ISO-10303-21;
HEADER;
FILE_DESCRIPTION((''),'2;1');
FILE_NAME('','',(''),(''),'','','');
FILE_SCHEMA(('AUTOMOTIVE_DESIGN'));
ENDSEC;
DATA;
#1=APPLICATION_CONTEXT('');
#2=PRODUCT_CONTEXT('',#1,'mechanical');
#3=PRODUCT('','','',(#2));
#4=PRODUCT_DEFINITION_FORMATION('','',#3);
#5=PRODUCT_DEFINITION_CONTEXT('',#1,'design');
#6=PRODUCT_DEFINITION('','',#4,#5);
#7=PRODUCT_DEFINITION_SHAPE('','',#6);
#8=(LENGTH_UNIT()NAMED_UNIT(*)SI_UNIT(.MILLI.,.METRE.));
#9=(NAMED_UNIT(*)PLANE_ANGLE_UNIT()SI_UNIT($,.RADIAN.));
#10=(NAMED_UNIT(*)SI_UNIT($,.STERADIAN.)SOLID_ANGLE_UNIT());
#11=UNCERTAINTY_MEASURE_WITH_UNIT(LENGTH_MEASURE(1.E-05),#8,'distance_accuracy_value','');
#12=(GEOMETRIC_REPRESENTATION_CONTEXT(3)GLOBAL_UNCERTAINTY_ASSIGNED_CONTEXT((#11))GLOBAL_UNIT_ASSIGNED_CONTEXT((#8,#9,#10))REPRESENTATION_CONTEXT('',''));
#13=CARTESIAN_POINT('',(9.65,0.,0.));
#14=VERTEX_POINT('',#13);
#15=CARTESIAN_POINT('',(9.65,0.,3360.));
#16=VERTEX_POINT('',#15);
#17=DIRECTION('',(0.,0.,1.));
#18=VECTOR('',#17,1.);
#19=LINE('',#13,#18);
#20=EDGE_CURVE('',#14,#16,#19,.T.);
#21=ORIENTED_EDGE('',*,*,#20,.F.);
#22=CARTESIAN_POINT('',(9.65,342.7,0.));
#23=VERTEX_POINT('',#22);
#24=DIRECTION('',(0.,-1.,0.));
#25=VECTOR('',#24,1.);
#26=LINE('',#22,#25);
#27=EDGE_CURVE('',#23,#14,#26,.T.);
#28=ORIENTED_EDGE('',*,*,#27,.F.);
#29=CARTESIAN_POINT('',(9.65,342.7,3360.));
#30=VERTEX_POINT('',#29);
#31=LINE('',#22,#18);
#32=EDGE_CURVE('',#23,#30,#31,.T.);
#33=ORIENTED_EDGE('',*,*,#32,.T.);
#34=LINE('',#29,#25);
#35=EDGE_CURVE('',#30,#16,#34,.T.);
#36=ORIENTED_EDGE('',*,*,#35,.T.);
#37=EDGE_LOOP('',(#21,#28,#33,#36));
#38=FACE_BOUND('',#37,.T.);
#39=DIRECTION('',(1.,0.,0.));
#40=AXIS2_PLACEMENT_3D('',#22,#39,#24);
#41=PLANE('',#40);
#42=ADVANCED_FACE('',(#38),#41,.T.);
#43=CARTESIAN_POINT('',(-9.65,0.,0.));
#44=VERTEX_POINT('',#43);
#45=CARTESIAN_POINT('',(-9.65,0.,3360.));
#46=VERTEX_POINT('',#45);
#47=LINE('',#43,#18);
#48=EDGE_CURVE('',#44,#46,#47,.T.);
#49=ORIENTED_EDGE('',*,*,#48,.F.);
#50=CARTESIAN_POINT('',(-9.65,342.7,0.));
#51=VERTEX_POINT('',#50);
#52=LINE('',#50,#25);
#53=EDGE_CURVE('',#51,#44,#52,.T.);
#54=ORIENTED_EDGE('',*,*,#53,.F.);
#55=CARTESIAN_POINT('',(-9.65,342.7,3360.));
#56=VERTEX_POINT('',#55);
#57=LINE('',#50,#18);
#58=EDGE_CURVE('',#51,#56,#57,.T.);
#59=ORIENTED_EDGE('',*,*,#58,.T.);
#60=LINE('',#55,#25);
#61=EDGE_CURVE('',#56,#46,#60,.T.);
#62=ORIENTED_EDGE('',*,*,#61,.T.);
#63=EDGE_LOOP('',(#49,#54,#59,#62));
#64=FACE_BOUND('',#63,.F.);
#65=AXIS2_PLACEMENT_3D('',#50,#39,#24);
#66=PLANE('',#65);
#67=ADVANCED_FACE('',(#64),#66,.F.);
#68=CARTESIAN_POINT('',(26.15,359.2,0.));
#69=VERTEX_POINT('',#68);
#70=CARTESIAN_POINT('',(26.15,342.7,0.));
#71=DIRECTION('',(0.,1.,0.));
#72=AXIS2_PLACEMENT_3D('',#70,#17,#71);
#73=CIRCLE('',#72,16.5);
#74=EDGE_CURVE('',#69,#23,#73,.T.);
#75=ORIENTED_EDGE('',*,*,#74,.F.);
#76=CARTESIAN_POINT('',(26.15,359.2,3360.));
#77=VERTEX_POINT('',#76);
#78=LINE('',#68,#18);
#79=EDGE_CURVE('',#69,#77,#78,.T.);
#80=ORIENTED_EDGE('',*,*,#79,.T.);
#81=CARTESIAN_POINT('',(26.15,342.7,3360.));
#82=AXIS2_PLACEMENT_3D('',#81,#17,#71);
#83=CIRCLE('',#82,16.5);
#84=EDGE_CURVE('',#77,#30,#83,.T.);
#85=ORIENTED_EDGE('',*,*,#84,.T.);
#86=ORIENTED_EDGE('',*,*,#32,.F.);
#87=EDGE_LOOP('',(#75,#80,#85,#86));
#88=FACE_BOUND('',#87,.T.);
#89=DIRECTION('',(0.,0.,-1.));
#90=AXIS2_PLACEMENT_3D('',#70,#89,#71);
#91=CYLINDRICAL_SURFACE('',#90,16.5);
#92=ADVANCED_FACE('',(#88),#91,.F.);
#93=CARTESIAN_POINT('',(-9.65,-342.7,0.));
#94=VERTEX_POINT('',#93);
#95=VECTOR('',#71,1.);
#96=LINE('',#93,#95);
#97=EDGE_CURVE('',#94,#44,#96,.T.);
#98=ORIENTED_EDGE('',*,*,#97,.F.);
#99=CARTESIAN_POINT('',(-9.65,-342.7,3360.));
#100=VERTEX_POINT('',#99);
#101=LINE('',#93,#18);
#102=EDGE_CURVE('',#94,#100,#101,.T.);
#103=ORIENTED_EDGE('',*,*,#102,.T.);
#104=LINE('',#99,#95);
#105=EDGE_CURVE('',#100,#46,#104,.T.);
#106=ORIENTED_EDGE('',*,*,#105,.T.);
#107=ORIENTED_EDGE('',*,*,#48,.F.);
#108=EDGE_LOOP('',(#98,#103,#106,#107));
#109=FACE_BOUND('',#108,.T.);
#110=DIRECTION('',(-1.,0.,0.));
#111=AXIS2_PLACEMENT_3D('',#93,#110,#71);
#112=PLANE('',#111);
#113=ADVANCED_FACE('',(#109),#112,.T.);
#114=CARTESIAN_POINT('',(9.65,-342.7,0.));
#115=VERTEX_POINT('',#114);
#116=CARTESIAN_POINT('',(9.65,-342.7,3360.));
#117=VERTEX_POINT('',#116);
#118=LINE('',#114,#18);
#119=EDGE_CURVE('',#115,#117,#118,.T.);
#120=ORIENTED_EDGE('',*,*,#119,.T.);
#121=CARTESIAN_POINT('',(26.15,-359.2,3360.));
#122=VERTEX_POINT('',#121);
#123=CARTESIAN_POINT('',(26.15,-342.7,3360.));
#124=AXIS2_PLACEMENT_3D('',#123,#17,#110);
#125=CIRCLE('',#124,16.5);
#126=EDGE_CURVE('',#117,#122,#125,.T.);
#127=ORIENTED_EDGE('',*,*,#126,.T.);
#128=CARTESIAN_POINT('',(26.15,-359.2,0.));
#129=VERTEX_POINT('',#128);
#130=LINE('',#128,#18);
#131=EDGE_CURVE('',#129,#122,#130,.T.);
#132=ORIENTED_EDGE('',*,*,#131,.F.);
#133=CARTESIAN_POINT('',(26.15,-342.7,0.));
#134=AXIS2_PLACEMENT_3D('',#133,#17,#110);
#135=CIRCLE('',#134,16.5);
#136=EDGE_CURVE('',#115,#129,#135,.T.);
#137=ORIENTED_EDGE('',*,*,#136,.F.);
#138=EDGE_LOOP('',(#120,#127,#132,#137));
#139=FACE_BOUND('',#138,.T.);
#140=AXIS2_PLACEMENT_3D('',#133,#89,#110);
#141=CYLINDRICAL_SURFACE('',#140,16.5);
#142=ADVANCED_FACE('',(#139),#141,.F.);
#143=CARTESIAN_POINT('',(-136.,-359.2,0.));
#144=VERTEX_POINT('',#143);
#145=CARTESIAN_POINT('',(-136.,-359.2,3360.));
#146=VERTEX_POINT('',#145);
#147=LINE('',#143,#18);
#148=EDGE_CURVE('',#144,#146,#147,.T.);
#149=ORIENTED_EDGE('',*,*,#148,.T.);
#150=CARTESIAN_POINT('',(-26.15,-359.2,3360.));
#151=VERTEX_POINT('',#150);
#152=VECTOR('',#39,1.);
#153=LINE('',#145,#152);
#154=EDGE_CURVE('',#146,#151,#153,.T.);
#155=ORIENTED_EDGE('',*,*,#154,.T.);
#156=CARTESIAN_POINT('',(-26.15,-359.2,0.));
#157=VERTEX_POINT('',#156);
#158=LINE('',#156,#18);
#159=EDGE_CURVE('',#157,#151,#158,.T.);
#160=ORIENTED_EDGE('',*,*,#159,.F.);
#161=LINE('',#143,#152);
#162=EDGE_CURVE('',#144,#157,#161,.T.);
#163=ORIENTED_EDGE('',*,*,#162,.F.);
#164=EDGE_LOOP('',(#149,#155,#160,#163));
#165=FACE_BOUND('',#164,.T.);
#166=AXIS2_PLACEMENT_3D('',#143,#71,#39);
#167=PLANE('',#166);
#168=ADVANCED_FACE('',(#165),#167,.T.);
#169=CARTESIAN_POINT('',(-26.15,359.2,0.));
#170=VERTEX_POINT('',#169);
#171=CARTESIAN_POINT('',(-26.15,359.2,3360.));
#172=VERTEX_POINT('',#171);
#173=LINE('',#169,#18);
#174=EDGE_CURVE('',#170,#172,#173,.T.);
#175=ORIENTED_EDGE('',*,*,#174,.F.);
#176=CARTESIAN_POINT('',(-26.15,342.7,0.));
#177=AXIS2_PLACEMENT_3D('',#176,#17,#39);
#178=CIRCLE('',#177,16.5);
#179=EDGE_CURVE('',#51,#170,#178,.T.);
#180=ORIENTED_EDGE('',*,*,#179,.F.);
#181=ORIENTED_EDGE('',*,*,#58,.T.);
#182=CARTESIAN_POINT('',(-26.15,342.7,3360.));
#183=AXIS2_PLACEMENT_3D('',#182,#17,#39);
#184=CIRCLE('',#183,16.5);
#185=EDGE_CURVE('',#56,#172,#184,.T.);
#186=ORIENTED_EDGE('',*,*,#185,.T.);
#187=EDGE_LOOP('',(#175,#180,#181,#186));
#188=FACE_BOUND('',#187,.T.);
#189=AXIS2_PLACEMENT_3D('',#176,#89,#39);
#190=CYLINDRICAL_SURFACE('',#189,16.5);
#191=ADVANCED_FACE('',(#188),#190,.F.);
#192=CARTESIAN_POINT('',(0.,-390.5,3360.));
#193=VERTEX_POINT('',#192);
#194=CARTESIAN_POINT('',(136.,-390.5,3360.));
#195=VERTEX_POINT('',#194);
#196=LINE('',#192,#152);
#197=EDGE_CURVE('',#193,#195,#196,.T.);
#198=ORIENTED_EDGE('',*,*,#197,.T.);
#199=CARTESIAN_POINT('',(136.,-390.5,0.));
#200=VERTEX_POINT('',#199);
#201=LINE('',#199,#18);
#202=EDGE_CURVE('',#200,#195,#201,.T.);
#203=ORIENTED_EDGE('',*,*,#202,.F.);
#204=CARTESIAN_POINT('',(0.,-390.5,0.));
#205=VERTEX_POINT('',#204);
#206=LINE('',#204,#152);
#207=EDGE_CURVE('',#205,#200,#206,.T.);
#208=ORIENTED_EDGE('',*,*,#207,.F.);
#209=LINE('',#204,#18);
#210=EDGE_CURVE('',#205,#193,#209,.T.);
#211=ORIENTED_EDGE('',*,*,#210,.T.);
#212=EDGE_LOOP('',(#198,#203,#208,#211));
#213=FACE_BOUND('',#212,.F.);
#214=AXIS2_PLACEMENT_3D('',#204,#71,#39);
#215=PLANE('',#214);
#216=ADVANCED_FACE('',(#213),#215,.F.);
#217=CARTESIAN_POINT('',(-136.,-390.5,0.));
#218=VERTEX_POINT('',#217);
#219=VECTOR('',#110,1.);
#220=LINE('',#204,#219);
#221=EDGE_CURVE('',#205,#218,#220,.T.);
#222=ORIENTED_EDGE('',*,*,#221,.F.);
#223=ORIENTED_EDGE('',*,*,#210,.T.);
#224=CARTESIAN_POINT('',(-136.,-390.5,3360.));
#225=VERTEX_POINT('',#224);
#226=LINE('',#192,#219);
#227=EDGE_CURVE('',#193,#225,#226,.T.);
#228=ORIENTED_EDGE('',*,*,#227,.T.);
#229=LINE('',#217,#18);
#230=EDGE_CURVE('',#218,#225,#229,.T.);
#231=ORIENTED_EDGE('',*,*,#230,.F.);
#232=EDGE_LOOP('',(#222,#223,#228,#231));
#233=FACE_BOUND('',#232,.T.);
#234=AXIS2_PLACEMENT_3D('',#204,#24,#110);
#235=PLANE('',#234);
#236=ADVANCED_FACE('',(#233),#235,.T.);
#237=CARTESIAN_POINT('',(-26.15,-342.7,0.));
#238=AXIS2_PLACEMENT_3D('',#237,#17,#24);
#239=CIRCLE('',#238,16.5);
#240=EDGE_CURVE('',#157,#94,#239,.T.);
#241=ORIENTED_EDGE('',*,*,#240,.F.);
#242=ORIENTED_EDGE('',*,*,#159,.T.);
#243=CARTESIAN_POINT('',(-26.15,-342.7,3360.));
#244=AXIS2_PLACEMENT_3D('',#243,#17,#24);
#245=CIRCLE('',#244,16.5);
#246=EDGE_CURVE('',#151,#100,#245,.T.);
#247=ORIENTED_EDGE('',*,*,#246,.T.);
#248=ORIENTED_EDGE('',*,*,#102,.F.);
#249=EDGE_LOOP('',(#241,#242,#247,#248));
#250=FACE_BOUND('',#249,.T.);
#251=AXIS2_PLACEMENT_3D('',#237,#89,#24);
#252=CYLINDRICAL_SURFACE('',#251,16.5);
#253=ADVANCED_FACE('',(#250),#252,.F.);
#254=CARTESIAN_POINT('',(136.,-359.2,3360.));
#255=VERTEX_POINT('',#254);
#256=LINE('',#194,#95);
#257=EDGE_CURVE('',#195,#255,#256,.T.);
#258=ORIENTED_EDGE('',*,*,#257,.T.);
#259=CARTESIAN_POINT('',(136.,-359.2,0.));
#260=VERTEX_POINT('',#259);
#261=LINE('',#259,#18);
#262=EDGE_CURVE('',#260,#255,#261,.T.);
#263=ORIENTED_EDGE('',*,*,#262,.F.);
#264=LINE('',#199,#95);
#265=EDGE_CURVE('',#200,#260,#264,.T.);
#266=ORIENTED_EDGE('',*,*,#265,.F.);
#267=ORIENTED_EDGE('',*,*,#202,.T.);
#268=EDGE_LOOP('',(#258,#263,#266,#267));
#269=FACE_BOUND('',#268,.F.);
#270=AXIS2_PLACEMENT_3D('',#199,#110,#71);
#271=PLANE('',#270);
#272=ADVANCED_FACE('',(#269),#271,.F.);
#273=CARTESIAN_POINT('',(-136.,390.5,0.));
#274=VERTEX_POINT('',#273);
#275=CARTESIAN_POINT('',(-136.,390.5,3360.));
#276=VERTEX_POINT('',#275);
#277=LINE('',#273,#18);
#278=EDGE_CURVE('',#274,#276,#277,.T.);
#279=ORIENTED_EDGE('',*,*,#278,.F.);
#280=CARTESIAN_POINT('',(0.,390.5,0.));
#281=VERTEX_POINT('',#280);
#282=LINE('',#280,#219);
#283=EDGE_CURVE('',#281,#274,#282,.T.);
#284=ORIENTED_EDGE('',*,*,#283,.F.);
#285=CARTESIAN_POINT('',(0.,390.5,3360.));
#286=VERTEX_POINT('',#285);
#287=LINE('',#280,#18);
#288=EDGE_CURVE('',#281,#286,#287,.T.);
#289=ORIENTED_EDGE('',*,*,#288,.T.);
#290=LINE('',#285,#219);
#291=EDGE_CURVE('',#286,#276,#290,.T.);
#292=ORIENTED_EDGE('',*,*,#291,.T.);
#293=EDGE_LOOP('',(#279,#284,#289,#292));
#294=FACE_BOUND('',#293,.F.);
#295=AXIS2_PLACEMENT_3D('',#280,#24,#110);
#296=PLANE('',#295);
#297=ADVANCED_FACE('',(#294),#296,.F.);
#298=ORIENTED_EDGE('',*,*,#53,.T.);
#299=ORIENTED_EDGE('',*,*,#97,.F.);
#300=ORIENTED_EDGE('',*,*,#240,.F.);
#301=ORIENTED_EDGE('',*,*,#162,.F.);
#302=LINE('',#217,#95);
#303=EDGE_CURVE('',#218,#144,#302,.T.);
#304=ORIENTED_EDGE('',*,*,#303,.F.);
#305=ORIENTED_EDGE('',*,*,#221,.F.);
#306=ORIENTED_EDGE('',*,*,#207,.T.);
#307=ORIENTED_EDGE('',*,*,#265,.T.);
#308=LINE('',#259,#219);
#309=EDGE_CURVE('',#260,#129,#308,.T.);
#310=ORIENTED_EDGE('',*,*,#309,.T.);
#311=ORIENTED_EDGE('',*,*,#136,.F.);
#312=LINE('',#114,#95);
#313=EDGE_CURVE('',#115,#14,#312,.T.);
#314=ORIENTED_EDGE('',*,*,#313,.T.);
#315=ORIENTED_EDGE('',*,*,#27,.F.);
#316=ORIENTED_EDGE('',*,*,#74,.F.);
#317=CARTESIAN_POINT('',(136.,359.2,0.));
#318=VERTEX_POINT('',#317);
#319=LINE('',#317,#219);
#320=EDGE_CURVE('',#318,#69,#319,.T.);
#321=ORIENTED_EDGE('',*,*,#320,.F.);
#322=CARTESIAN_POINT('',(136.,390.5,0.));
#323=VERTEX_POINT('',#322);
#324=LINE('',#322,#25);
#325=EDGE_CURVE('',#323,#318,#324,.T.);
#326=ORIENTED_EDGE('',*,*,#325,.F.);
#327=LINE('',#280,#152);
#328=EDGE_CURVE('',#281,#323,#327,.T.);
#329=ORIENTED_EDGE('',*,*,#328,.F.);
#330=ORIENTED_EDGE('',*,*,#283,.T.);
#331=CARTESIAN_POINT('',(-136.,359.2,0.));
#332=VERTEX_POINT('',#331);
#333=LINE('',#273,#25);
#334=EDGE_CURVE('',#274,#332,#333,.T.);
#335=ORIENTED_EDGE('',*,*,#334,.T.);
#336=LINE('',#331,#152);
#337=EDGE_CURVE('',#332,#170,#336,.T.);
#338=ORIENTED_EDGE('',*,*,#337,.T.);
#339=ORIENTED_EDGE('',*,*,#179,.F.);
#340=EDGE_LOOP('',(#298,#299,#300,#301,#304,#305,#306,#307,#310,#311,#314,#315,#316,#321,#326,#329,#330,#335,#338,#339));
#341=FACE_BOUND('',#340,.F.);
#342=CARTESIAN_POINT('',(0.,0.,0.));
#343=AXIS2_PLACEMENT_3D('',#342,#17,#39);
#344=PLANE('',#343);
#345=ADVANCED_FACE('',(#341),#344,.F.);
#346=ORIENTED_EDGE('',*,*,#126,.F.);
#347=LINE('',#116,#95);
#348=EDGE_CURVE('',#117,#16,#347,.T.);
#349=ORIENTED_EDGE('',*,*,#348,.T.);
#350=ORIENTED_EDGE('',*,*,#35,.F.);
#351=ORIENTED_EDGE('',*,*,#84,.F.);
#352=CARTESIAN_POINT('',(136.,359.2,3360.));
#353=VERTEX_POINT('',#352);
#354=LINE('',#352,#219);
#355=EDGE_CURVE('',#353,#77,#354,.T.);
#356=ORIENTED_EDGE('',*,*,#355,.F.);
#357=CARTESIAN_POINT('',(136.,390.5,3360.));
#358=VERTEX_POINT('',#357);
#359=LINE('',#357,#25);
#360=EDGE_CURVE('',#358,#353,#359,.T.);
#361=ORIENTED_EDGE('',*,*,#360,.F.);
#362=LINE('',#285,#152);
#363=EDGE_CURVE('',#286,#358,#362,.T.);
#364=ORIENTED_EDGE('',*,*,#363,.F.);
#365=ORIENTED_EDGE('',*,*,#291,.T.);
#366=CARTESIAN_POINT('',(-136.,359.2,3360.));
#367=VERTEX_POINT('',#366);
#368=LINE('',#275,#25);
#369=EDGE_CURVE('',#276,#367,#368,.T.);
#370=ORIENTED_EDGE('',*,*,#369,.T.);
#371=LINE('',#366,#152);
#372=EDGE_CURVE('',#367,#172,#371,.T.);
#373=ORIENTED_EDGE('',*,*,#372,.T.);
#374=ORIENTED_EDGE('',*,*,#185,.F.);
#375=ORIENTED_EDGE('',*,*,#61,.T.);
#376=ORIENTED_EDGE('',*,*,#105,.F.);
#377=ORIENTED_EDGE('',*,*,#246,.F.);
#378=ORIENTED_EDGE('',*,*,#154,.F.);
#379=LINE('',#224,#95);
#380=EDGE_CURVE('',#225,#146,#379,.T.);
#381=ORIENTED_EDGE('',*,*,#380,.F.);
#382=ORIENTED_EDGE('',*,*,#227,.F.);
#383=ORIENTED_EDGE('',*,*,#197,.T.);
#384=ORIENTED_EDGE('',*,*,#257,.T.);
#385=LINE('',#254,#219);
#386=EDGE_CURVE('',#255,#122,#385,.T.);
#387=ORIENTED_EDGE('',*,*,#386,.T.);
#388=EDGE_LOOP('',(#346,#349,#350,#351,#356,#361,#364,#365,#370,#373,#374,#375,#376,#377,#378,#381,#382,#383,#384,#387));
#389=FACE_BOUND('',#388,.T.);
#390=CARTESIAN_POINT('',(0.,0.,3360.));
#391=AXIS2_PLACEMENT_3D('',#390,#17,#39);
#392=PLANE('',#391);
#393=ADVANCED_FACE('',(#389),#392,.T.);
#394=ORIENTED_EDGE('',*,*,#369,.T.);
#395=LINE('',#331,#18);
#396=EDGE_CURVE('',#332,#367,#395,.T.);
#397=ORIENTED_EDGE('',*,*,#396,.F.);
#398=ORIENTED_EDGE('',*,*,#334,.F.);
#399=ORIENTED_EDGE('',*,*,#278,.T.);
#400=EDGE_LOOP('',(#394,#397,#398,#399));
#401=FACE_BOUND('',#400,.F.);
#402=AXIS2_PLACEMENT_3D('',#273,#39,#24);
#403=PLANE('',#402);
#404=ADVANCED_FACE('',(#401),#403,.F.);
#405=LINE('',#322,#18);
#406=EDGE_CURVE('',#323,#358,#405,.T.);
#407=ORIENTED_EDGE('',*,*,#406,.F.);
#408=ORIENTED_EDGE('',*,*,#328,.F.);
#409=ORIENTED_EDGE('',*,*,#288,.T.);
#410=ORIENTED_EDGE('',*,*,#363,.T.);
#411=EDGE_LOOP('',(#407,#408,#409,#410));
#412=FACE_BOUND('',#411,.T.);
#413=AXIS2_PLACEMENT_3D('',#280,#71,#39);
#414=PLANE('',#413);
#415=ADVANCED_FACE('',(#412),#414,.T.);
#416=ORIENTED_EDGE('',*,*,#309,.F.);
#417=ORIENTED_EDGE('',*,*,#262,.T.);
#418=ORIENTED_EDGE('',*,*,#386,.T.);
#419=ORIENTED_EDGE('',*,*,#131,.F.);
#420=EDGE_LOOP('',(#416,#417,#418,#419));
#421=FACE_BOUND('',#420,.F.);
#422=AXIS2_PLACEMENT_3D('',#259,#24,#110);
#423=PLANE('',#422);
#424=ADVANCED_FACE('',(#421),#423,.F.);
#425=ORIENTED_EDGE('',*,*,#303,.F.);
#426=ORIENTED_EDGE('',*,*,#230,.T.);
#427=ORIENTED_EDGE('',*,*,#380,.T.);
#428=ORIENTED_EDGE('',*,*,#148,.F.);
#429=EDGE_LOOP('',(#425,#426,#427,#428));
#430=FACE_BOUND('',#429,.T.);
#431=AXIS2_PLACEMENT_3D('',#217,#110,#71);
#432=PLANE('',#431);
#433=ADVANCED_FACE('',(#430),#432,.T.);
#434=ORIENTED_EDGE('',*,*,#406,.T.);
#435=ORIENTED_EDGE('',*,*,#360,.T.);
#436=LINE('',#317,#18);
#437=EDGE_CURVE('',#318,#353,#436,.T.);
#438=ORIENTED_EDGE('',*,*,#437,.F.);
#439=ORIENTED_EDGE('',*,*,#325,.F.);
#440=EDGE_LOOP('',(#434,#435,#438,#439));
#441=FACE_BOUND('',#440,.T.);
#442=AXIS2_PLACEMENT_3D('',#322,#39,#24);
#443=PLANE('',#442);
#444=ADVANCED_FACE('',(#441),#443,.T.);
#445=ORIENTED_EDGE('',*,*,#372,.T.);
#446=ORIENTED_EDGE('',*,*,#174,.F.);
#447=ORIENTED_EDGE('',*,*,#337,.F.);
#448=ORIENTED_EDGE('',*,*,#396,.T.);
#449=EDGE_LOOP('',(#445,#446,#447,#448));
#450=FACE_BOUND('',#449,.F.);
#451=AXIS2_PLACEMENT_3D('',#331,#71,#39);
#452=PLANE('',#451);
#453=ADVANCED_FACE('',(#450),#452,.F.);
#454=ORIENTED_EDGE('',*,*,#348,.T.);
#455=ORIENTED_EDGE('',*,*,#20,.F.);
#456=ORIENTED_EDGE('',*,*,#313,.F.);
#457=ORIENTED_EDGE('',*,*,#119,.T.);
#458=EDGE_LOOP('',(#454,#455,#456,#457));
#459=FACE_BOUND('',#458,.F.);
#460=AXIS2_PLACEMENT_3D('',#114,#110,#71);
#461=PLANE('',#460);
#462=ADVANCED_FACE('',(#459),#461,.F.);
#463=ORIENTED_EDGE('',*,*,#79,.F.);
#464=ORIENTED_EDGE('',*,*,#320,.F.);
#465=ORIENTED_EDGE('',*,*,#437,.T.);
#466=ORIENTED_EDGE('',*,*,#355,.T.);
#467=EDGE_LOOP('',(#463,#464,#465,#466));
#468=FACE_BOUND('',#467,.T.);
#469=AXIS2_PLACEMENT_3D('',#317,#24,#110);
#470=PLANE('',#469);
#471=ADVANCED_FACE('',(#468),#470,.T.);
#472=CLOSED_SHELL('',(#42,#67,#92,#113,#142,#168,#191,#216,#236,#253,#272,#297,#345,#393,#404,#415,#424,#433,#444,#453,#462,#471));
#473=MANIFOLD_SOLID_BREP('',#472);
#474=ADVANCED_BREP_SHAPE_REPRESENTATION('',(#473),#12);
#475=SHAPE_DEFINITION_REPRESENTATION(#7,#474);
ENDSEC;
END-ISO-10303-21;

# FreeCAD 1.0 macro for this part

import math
import FreeCAD as App
import Part
import Sketcher

doc = App.newDocument("Part")
body = doc.addObject("PartDesign::Body", "Body")

# Sketch on XY plane
sketch1 = body.newObject("Sketcher::SketchObject", "Sketch")
sketch1.AttachmentSupport = (doc.getObject("XY_Plane"), [""])
sketch1.MapMode = "FlatFace"
sketch1.addGeometry(Part.LineSegment(App.Vector(-136, -359, 0), App.Vector(-136, -390, 0)), False)
sketch1.addGeometry(Part.LineSegment(App.Vector(-136, -390, 0), App.Vector(136, -390, 0)), False)
sketch1.addGeometry(Part.LineSegment(App.Vector(136, -390, 0), App.Vector(136, -359, 0)), False)
sketch1.addGeometry(Part.LineSegment(App.Vector(136, -359, 0), App.Vector(26, -359, 0)), False)
sketch1.addGeometry(Part.ArcOfCircle(Part.Circle(App.Vector(26, -343, 0), App.Vector(0, 0, 1), 16), math.radians(180), math.radians(270)), False)
sketch1.addGeometry(Part.LineSegment(App.Vector(10, -343, 0), App.Vector(10, 343, 0)), False)
sketch1.addGeometry(Part.ArcOfCircle(Part.Circle(App.Vector(26, 343, 0), App.Vector(0, 0, 1), 16), math.radians(90), math.radians(180)), False)
sketch1.addGeometry(Part.LineSegment(App.Vector(26, 359, 0), App.Vector(136, 359, 0)), False)
sketch1.addGeometry(Part.LineSegment(App.Vector(136, 359, 0), App.Vector(136, 390, 0)), False)
sketch1.addGeometry(Part.LineSegment(App.Vector(136, 390, 0), App.Vector(-136, 390, 0)), False)
sketch1.addGeometry(Part.LineSegment(App.Vector(-136, 390, 0), App.Vector(-136, 359, 0)), False)
sketch1.addGeometry(Part.LineSegment(App.Vector(-136, 359, 0), App.Vector(-26, 359, 0)), False)
sketch1.addGeometry(Part.ArcOfCircle(Part.Circle(App.Vector(-26, 343, 0), App.Vector(0, 0, 1), 16), math.radians(0), math.radians(90)), False)
sketch1.addGeometry(Part.LineSegment(App.Vector(-10, 343, 0), App.Vector(-10, -343, 0)), False)
sketch1.addGeometry(Part.ArcOfCircle(Part.Circle(App.Vector(-26, -343, 0), App.Vector(0, 0, 1), 16), math.radians(-90), math.radians(0)), False)
sketch1.addGeometry(Part.LineSegment(App.Vector(-26, -359, 0), App.Vector(-136, -359, 0)), False)
sketch1.addConstraint(Sketcher.Constraint("Coincident", 0, 2, 1, 1))
sketch1.addConstraint(Sketcher.Constraint("Coincident", 1, 2, 2, 1))
sketch1.addConstraint(Sketcher.Constraint("Coincident", 2, 2, 3, 1))
sketch1.addConstraint(Sketcher.Constraint("Tangent", 3, 2, 4, 2))
sketch1.addConstraint(Sketcher.Constraint("Tangent", 4, 1, 5, 1))
sketch1.addConstraint(Sketcher.Constraint("Tangent", 5, 2, 6, 2))
sketch1.addConstraint(Sketcher.Constraint("Tangent", 6, 1, 7, 1))
sketch1.addConstraint(Sketcher.Constraint("Coincident", 7, 2, 8, 1))
sketch1.addConstraint(Sketcher.Constraint("Coincident", 8, 2, 9, 1))
sketch1.addConstraint(Sketcher.Constraint("Coincident", 9, 2, 10, 1))
sketch1.addConstraint(Sketcher.Constraint("Coincident", 10, 2, 11, 1))
sketch1.addConstraint(Sketcher.Constraint("Tangent", 11, 2, 12, 2))
sketch1.addConstraint(Sketcher.Constraint("Tangent", 12, 1, 13, 1))
sketch1.addConstraint(Sketcher.Constraint("Tangent", 13, 2, 14, 2))
sketch1.addConstraint(Sketcher.Constraint("Tangent", 14, 1, 15, 1))
sketch1.addConstraint(Sketcher.Constraint("Coincident", 15, 2, 0, 1))
sketch1.addConstraint(Sketcher.Constraint("Vertical", 0))
sketch1.addConstraint(Sketcher.Constraint("Horizontal", 1))
sketch1.addConstraint(Sketcher.Constraint("Vertical", 2))
sketch1.addConstraint(Sketcher.Constraint("Horizontal", 3))
sketch1.addConstraint(Sketcher.Constraint("Vertical", 5))
sketch1.addConstraint(Sketcher.Constraint("Horizontal", 7))
sketch1.addConstraint(Sketcher.Constraint("Vertical", 8))
sketch1.addConstraint(Sketcher.Constraint("Horizontal", 9))
sketch1.addConstraint(Sketcher.Constraint("Vertical", 10))
sketch1.addConstraint(Sketcher.Constraint("Horizontal", 11))
sketch1.addConstraint(Sketcher.Constraint("Vertical", 13))
sketch1.addConstraint(Sketcher.Constraint("Horizontal", 15))
sketch1.addConstraint(Sketcher.Constraint("Equal", 4, 6))
sketch1.addConstraint(Sketcher.Constraint("Equal", 6, 12))
sketch1.addConstraint(Sketcher.Constraint("Equal", 12, 14))
sketch1.addConstraint(Sketcher.Constraint("Symmetric", 4, 3, 12, 3, -1, 1))
sketch1.addConstraint(Sketcher.Constraint("Symmetric", 0, 2, 8, 2, -1, 1))
sketch1.addConstraint(Sketcher.Constraint("Symmetric", 7, 2, 10, 2, -2))
sketch1.addConstraint(Sketcher.Constraint("Symmetric", 2, 2, 15, 2, -2))
sketch1.addConstraint(Sketcher.Constraint("Radius", 4, 16.5))
sketch1.addConstraint(Sketcher.Constraint("DistanceY", 0, 2, 0, 1, 31.3))
sketch1.addConstraint(Sketcher.Constraint("DistanceX", 0, 2, -1, 1, 136.0))
sketch1.addConstraint(Sketcher.Constraint("DistanceY", 0, 2, -1, 1, 390.5))
sketch1.addConstraint(Sketcher.Constraint("DistanceX", -1, 1, 4, 1, 9.65))
pad1 = body.newObject("PartDesign::Pad", "Pad")
pad1.Profile = sketch1
pad1.Length = 3360

doc.recompute()
